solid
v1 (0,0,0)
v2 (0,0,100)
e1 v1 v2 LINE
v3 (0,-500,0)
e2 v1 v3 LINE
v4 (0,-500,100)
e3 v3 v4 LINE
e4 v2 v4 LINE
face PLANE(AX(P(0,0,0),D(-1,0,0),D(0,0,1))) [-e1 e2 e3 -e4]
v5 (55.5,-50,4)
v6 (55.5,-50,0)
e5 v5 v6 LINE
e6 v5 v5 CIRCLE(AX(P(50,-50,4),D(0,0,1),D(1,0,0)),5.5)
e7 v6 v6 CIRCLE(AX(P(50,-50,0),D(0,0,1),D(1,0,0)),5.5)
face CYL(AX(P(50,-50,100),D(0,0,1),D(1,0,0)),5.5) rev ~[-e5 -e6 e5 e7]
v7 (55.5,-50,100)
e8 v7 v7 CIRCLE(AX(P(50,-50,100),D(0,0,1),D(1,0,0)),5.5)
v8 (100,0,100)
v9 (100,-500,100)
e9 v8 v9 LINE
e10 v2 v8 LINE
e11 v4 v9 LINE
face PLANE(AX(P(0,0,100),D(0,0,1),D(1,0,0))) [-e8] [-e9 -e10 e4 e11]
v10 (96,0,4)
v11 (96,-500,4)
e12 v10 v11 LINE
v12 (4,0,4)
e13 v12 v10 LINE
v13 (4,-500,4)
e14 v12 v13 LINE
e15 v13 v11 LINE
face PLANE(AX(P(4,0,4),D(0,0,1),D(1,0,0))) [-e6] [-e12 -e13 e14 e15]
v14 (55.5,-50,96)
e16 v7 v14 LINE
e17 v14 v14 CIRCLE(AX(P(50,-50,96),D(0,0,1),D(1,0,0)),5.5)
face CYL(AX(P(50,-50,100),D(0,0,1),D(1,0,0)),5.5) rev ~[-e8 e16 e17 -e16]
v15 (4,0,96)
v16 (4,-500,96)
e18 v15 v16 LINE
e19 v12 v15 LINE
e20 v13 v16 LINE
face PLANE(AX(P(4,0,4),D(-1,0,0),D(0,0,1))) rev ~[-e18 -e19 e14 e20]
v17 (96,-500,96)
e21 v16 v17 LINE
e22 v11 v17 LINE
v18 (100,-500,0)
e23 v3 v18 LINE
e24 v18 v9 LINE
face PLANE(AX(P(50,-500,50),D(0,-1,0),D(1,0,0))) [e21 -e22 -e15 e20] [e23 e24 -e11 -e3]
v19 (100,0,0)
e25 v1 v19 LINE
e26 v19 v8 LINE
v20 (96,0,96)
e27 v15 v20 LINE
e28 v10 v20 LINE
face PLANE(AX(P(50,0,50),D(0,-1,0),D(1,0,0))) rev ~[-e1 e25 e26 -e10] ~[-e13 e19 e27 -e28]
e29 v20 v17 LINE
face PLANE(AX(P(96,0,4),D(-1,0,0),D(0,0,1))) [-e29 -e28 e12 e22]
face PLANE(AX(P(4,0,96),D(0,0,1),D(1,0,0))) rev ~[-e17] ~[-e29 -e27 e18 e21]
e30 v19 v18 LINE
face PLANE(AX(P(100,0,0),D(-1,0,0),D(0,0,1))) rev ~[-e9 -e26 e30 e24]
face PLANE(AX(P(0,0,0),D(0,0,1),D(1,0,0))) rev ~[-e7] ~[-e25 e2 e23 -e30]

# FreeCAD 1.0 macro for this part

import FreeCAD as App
import Part
import Sketcher
Q = App.Units.Quantity

doc = App.newDocument("Part")
body = doc.addObject("PartDesign::Body", "Body")

# Sketch on XZ plane
sketch1 = body.newObject("Sketcher::SketchObject", "Sketch")
sketch1.AttachmentSupport = (doc.getObject("XZ_Plane"), [""])
sketch1.MapMode = "FlatFace"
sketch1.addGeometry([
    Part.LineSegment(App.Vector(0, 100, 0), App.Vector(0, 0, 0)),  # 0
    Part.LineSegment(App.Vector(0, 0, 0), App.Vector(100, 0, 0)),  # 1
    Part.LineSegment(App.Vector(100, 0, 0), App.Vector(100, 100, 0)),  # 2
    Part.LineSegment(App.Vector(100, 100, 0), App.Vector(0, 100, 0)),  # 3
    Part.LineSegment(App.Vector(96, 4, 0), App.Vector(4, 4, 0)),  # 4
    Part.LineSegment(App.Vector(4, 4, 0), App.Vector(4, 96, 0)),  # 5
    Part.LineSegment(App.Vector(4, 96, 0), App.Vector(96, 96, 0)),  # 6
    Part.LineSegment(App.Vector(96, 96, 0), App.Vector(96, 4, 0)),  # 7
], False)
sketch1.addConstraint([
    Sketcher.Constraint("Coincident", 0, 2, 1, 1),
    Sketcher.Constraint("Coincident", 1, 2, 2, 1),
    Sketcher.Constraint("Coincident", 2, 2, 3, 1),
    Sketcher.Constraint("Coincident", 3, 2, 0, 1),
    Sketcher.Constraint("Coincident", 4, 2, 5, 1),
    Sketcher.Constraint("Coincident", 5, 2, 6, 1),
    Sketcher.Constraint("Coincident", 6, 2, 7, 1),
    Sketcher.Constraint("Coincident", 7, 2, 4, 1),
    Sketcher.Constraint("Vertical", 0),
    Sketcher.Constraint("Horizontal", 1),
    Sketcher.Constraint("Vertical", 2),
    Sketcher.Constraint("Horizontal", 3),
    Sketcher.Constraint("Horizontal", 4),
    Sketcher.Constraint("Vertical", 5),
    Sketcher.Constraint("Horizontal", 6),
    Sketcher.Constraint("Vertical", 7),
    Sketcher.Constraint("Coincident", 0, 2, -1, 1),
    Sketcher.Constraint("Equal", 3, 0),
    Sketcher.Constraint("Equal", 6, 5),
    Sketcher.Constraint("DistanceX", 1, 1, 1, 2, Q("100 mm")),
    Sketcher.Constraint("DistanceX", 4, 2, 4, 1, Q("92 mm")),
    Sketcher.Constraint("DistanceX", -1, 1, 4, 2, Q("4 mm")),
    Sketcher.Constraint("DistanceY", -1, 1, 4, 2, Q("4 mm")),
])
pad1 = body.newObject("PartDesign::Pad", "Pad")
pad1.Profile = sketch1
pad1.Length = 500

# Sketch on XY plane
sketch2 = body.newObject("Sketcher::SketchObject", "Sketch001")
sketch2.AttachmentSupport = (doc.getObject("XY_Plane"), [""])
sketch2.MapMode = "FlatFace"
sketch2.AttachmentOffset = App.Placement(App.Vector(0, 0, 100), App.Rotation())
sketch2.addGeometry(Part.Circle(App.Vector(50, -50, 0), App.Vector(0, 0, 1), 5.5), False)
sketch2.addConstraint([
    Sketcher.Constraint("Diameter", 0, Q("11 mm")),
    Sketcher.Constraint("DistanceX", -1, 1, 0, 3, Q("50 mm")),
    Sketcher.Constraint("DistanceY", 0, 3, -1, 1, Q("50 mm")),
])
pocket1 = body.newObject("PartDesign::Pocket", "Pocket")
pocket1.Profile = sketch2
pocket1.Type = "ThroughAll"

doc.recompute()
